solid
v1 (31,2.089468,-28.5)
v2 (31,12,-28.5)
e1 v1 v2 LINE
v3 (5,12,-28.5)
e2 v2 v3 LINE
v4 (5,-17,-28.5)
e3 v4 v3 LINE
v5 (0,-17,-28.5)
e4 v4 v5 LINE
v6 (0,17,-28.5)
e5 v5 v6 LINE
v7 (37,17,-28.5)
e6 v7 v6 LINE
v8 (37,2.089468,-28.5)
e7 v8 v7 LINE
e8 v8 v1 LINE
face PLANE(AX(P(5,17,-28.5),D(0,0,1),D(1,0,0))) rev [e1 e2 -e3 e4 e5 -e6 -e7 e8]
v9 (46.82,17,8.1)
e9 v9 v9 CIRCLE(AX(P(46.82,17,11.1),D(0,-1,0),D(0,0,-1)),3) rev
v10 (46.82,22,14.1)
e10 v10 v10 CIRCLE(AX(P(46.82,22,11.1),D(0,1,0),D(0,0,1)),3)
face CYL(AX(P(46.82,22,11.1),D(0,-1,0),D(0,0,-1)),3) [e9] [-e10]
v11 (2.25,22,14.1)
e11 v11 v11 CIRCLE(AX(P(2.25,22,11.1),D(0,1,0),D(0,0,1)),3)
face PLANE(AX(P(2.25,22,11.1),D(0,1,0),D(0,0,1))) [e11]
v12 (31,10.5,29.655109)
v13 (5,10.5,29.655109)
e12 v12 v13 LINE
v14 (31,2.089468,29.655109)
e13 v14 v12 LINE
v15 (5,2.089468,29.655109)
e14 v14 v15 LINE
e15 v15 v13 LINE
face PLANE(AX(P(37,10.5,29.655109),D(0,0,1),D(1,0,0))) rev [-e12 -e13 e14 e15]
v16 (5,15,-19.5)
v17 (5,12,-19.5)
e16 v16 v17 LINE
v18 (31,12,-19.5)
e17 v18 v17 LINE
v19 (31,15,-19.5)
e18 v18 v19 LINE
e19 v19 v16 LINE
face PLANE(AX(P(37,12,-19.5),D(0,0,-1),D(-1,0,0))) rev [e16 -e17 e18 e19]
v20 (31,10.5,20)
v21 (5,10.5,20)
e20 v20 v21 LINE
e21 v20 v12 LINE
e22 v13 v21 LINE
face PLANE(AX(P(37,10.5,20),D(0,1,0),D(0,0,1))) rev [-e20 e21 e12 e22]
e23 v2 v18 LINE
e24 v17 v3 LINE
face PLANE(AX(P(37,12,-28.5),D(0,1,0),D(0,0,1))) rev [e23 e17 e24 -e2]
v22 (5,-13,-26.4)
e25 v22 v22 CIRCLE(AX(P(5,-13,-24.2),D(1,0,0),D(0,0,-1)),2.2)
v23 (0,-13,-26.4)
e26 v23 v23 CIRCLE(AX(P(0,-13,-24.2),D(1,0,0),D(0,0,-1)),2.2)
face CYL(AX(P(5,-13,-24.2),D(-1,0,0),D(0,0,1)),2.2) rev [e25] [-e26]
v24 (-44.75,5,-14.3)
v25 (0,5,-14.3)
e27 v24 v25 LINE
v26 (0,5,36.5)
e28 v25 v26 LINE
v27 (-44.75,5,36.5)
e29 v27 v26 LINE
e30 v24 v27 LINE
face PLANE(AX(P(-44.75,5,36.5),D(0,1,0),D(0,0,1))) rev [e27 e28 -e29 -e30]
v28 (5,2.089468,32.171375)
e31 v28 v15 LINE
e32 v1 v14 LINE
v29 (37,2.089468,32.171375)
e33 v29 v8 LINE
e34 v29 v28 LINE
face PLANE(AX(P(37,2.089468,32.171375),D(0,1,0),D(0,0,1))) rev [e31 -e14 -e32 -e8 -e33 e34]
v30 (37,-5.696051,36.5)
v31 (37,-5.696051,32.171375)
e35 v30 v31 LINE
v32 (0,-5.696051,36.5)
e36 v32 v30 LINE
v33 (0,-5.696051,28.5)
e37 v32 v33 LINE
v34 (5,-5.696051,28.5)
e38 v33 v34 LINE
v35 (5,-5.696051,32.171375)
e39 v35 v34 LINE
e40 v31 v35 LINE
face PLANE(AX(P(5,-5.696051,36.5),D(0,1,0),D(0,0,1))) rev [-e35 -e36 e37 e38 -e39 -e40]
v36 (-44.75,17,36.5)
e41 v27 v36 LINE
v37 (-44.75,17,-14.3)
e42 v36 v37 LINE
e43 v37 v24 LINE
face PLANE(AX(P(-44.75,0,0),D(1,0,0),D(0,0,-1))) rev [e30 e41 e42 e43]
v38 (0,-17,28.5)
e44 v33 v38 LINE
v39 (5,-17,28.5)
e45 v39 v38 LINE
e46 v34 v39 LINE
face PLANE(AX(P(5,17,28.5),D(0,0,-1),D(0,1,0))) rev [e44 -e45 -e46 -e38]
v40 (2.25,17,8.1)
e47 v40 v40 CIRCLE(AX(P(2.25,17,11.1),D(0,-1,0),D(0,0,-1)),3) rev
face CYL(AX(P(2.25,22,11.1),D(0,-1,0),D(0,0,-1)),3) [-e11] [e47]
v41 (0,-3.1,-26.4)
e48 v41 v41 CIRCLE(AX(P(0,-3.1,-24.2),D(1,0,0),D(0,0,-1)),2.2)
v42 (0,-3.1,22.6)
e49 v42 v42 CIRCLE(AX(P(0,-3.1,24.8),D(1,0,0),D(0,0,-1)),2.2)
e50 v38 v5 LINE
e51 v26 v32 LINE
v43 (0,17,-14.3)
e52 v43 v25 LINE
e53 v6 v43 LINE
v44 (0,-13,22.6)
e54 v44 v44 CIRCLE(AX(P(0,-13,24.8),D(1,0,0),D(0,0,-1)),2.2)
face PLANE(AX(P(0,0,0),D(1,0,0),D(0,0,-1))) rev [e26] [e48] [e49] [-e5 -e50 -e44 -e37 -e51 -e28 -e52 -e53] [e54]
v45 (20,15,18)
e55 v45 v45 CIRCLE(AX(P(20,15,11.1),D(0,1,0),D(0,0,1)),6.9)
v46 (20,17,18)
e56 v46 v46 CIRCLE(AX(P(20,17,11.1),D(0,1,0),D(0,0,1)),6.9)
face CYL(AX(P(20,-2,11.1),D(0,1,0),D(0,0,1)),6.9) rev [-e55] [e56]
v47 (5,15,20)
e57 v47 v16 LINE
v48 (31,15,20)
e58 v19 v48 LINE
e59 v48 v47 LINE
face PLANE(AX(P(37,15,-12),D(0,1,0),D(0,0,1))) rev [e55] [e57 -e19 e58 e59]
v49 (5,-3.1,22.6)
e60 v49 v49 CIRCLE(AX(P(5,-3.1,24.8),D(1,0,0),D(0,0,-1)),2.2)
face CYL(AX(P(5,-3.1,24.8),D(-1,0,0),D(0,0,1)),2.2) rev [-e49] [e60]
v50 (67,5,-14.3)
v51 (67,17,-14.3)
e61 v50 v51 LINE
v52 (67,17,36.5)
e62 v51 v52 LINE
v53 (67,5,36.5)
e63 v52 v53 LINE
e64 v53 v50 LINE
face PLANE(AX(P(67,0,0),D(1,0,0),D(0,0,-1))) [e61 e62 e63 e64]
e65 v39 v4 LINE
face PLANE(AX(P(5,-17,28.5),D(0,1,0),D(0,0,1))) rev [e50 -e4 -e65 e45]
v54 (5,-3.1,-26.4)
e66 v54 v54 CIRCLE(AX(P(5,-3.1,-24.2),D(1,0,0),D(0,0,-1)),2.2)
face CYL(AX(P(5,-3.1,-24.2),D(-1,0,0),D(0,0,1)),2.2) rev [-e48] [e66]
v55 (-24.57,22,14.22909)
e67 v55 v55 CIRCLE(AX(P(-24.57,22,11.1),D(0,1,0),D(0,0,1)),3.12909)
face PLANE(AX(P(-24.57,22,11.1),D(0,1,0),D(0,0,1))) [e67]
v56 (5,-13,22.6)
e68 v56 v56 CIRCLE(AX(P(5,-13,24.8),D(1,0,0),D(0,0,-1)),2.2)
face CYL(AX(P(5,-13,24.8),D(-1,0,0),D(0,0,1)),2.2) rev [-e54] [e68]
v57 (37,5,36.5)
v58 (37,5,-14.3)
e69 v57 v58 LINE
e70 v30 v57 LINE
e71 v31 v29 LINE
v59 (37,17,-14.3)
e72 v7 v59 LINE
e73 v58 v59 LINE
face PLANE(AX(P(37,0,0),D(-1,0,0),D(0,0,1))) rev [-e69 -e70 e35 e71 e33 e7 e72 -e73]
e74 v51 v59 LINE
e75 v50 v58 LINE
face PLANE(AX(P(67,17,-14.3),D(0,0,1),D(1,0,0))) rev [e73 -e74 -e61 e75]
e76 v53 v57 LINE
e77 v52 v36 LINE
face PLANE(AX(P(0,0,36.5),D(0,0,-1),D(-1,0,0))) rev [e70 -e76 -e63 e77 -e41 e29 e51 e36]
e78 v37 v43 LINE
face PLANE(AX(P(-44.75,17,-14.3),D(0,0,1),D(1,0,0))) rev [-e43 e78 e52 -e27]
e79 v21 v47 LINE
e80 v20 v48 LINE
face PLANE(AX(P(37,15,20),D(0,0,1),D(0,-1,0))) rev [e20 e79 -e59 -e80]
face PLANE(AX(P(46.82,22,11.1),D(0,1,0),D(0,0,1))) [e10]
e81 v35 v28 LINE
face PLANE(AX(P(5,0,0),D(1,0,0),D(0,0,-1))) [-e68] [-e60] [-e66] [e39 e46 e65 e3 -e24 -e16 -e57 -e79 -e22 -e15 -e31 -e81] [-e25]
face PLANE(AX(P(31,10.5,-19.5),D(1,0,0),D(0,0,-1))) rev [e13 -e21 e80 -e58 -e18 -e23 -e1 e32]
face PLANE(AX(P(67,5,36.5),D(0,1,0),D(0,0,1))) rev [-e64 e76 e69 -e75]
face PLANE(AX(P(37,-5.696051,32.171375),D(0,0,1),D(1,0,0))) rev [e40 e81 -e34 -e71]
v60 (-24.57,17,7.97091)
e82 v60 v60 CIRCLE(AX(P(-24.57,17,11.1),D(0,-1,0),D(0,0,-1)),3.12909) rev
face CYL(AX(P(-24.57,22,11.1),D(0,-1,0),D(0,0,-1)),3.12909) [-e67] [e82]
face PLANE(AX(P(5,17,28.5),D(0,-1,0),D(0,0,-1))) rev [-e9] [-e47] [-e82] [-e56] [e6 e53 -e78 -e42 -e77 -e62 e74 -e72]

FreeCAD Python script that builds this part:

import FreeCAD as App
import Part
import Sketcher

V = App.Vector
Q = App.Units.Quantity


def add_polygon(sketch, points):
    """Adds a closed chain of lines whose ends are joined by coincident constraints."""
    first, n = sketch.GeometryCount, len(points)
    for a, b in zip(points, points[1:] + points[:1]):
        sketch.addGeometry(Part.LineSegment(App.Vector(*a, 0), App.Vector(*b, 0)), False)
    for i in range(n):
        sketch.addConstraint(Sketcher.Constraint("Coincident", first + i, 2, first + (i + 1) % n, 1))

doc = App.newDocument("Part")
body = doc.addObject("PartDesign::Body", "Body")

# Sketch on YZ plane
sketch1 = doc.addObject("Sketcher::SketchObject", "Sketch")
body.addObject(sketch1)
sketch1.AttachmentSupport = (doc.YZ_Plane, [""])
sketch1.MapMode = "FlatFace"
add_polygon(sketch1, [(17, 28.5), (-17, 28.5), (-17, -28.5), (17, -28.5)])  # lines 0-3
sketch1.addGeometry(Part.Circle(V(-13, 24.8, 0), V(0, 0, 1), 2.2), False)  # 4
sketch1.addGeometry(Part.Circle(V(-13, -24.2, 0), V(0, 0, 1), 2.2), False)  # 5
sketch1.addGeometry(Part.Circle(V(-3.1, 24.8, 0), V(0, 0, 1), 2.2), False)  # 6
sketch1.addGeometry(Part.Circle(V(-3.1, -24.2, 0), V(0, 0, 1), 2.2), False)  # 7
sketch1.addConstraint(Sketcher.Constraint("Horizontal", 0))
sketch1.addConstraint(Sketcher.Constraint("Vertical", 1))
sketch1.addConstraint(Sketcher.Constraint("Horizontal", 2))
sketch1.addConstraint(Sketcher.Constraint("Vertical", 3))
sketch1.addConstraint(Sketcher.Constraint("Equal", 4, 5))
sketch1.addConstraint(Sketcher.Constraint("Equal", 5, 6))
sketch1.addConstraint(Sketcher.Constraint("Equal", 6, 7))
sketch1.addConstraint(Sketcher.Constraint("Symmetric", 0, 2, 2, 2, -1, 1))
sketch1.addConstraint(Sketcher.Constraint("Horizontal", 4, 3, 6, 3))
sketch1.addConstraint(Sketcher.Constraint("Horizontal", 5, 3, 7, 3))
sketch1.addConstraint(Sketcher.Constraint("Vertical", 4, 3, 5, 3))
sketch1.addConstraint(Sketcher.Constraint("Vertical", 6, 3, 7, 3))
sketch1.addConstraint(Sketcher.Constraint("Diameter", 4, Q("4.4 mm")))
sketch1.addConstraint(Sketcher.Constraint("DistanceX", 0, 2, 0, 1, Q("34 mm")))
sketch1.addConstraint(Sketcher.Constraint("DistanceY", 1, 2, 1, 1, Q("57 mm")))
sketch1.addConstraint(Sketcher.Constraint("DistanceX", 4, 3, -1, 1, Q("13 mm")))
sketch1.addConstraint(Sketcher.Constraint("DistanceY", 5, 3, 4, 3, Q("49 mm")))
sketch1.addConstraint(Sketcher.Constraint("DistanceY", -1, 1, 4, 3, Q("24.8 mm")))
sketch1.addConstraint(Sketcher.Constraint("DistanceX", 6, 3, -1, 1, Q("3.1 mm")))
pad1 = doc.addObject("PartDesign::Pad", "Pad")
body.addObject(pad1)
pad1.Profile = sketch1
pad1.Length = 5

# Sketch on YZ plane
sketch2 = doc.addObject("Sketcher::SketchObject", "Sketch001")
body.addObject(sketch2)
sketch2.AttachmentSupport = (doc.YZ_Plane, [""])
sketch2.MapMode = "FlatFace"
sketch2.AttachmentOffset = App.Placement(V(0, 0, 5), App.Rotation())
add_polygon(sketch2, [(17, -12), (17, 28.5), (10.5, 28.5), (10.5, 20), (15, 20), (15, -12)])  # lines 0-5
sketch2.addConstraint(Sketcher.Constraint("Vertical", 0))
sketch2.addConstraint(Sketcher.Constraint("Horizontal", 1))
sketch2.addConstraint(Sketcher.Constraint("Vertical", 2))
sketch2.addConstraint(Sketcher.Constraint("Horizontal", 3))
sketch2.addConstraint(Sketcher.Constraint("Vertical", 4))
sketch2.addConstraint(Sketcher.Constraint("Horizontal", 5))
sketch2.addConstraint(Sketcher.Constraint("DistanceX", 5, 1, 5, 2, Q("2 mm")))
sketch2.addConstraint(Sketcher.Constraint("DistanceY", 4, 2, 4, 1, Q("32 mm")))
sketch2.addConstraint(Sketcher.Constraint("DistanceX", 1, 2, 1, 1, Q("6.5 mm")))
sketch2.addConstraint(Sketcher.Constraint("DistanceY", 0, 1, 0, 2, Q("40.5 mm")))
sketch2.addConstraint(Sketcher.Constraint("DistanceX", -1, 1, 0, 2, Q("17 mm")))
sketch2.addConstraint(Sketcher.Constraint("DistanceY", -1, 1, 2, 2, Q("20 mm")))
pad2 = doc.addObject("PartDesign::Pad", "Pad001")
body.addObject(pad2)
pad2.Profile = sketch2
pad2.Length = 32

# Sketch on XZ plane
sketch3 = doc.addObject("Sketcher::SketchObject", "Sketch002")
body.addObject(sketch3)
sketch3.AttachmentSupport = (doc.XZ_Plane, [""])
sketch3.MapMode = "FlatFace"
sketch3.AttachmentOffset = App.Placement(V(0, 0, -17), App.Rotation())
sketch3.addGeometry(Part.Circle(V(20, 11, 0), V(0, 0, 1), 7), False)
sketch3.addConstraint(Sketcher.Constraint("Diameter", 0, Q("13.8 mm")))
sketch3.addConstraint(Sketcher.Constraint("DistanceX", -1, 1, 0, 3, Q("20 mm")))
sketch3.addConstraint(Sketcher.Constraint("DistanceY", -1, 1, 0, 3, Q("11.1 mm")))
pocket1 = doc.addObject("PartDesign::Pocket", "Pocket")
body.addObject(pocket1)
pocket1.Profile = sketch3
pocket1.Length = 19
pocket1.Reversed = True

# Sketch on XY plane
sketch4 = doc.addObject("Sketcher::SketchObject", "Sketch003")
body.addObject(sketch4)
sketch4.AttachmentSupport = (doc.XY_Plane, [""])
sketch4.MapMode = "FlatFace"
sketch4.AttachmentOffset = App.Placement(V(0, 0, 28.5), App.Rotation())
add_polygon(sketch4, [(37, 17), (0, 17), (0, -6), (5, -6), (5, 10), (37, 10)])  # lines 0-5
sketch4.addConstraint(Sketcher.Constraint("Horizontal", 0))
sketch4.addConstraint(Sketcher.Constraint("Vertical", 1))
sketch4.addConstraint(Sketcher.Constraint("Horizontal", 2))
sketch4.addConstraint(Sketcher.Constraint("Vertical", 3))
sketch4.addConstraint(Sketcher.Constraint("Horizontal", 4))
sketch4.addConstraint(Sketcher.Constraint("Vertical", 5))
sketch4.addConstraint(Sketcher.Constraint("PointOnObject", 0, 2, -2))
sketch4.addConstraint(Sketcher.Constraint("DistanceX", 0, 2, 0, 1, Q("37 mm")))
sketch4.addConstraint(Sketcher.Constraint("DistanceX", 2, 1, 2, 2, Q("5 mm")))
sketch4.addConstraint(Sketcher.Constraint("DistanceY", 5, 1, 5, 2, Q("6.5 mm")))
sketch4.addConstraint(Sketcher.Constraint("DistanceY", -1, 1, 0, 2, Q("17 mm")))
sketch4.addConstraint(Sketcher.Constraint("DistanceY", 1, 2, 1, 1, Q("22.696051 mm")))
pad3 = doc.addObject("PartDesign::Pad", "Pad002")
body.addObject(pad3)
pad3.Profile = sketch4
pad3.Length = 8

# Sketch on XY plane
sketch5 = doc.addObject("Sketcher::SketchObject", "Sketch004")
body.addObject(sketch5)
sketch5.AttachmentSupport = (doc.XY_Plane, [""])
sketch5.MapMode = "FlatFace"
sketch5.AttachmentOffset = App.Placement(V(0, 0, 20), App.Rotation())
add_polygon(sketch5, [(37, 15), (37, 10.5), (31, 10.5), (31, 15)])  # lines 0-3
sketch5.addConstraint(Sketcher.Constraint("Vertical", 0))
sketch5.addConstraint(Sketcher.Constraint("Horizontal", 1))
sketch5.addConstraint(Sketcher.Constraint("Vertical", 2))
sketch5.addConstraint(Sketcher.Constraint("Horizontal", 3))
sketch5.addConstraint(Sketcher.Constraint("DistanceX", 1, 2, 1, 1, Q("6 mm")))
sketch5.addConstraint(Sketcher.Constraint("DistanceY", 0, 2, 0, 1, Q("4.5 mm")))
sketch5.addConstraint(Sketcher.Constraint("DistanceX", -1, 1, 0, 2, Q("37 mm")))
sketch5.addConstraint(Sketcher.Constraint("DistanceY", -1, 1, 2, 2, Q("15 mm")))
pad4 = doc.addObject("PartDesign::Pad", "Pad003")
body.addObject(pad4)
pad4.Profile = sketch5
pad4.Length = 39.5
pad4.Reversed = True

# Sketch on YZ plane
sketch6 = doc.addObject("Sketcher::SketchObject", "Sketch005")
body.addObject(sketch6)
sketch6.AttachmentSupport = (doc.YZ_Plane, [""])
sketch6.MapMode = "FlatFace"
sketch6.AttachmentOffset = App.Placement(V(0, 0, 5), App.Rotation())
add_polygon(sketch6, [(-5.7, 36.5), (-5.7, 32.2), (2.1, 32.2), (2.1, 29.7), (10.5, 29.7), (10.5, 36.5)])  # lines 0-5
sketch6.addConstraint(Sketcher.Constraint("Vertical", 0))
sketch6.addConstraint(Sketcher.Constraint("Horizontal", 1))
sketch6.addConstraint(Sketcher.Constraint("Vertical", 2))
sketch6.addConstraint(Sketcher.Constraint("Horizontal", 3))
sketch6.addConstraint(Sketcher.Constraint("Vertical", 4))
sketch6.addConstraint(Sketcher.Constraint("Horizontal", 5))
sketch6.addConstraint(Sketcher.Constraint("DistanceX", -1, 1, 3, 2, Q("10.5 mm")))
sketch6.addConstraint(Sketcher.Constraint("DistanceY", -1, 1, 4, 2, Q("36.5 mm")))
sketch6.addConstraint(Sketcher.Constraint("DistanceX", 1, 1, 1, 2, Q("7.785519 mm")))
sketch6.addConstraint(Sketcher.Constraint("DistanceX", 3, 1, 3, 2, Q("8.410532 mm")))
sketch6.addConstraint(Sketcher.Constraint("DistanceY", 4, 1, 4, 2, Q("6.844891 mm")))
sketch6.addConstraint(Sketcher.Constraint("DistanceY", 0, 2, 0, 1, Q("4.328625 mm")))
pad5 = doc.addObject("PartDesign::Pad", "Pad004")
body.addObject(pad5)
pad5.Profile = sketch6
pad5.Length = 32

# Sketch on YZ plane
sketch7 = doc.addObject("Sketcher::SketchObject", "Sketch006")
body.addObject(sketch7)
sketch7.AttachmentSupport = (doc.YZ_Plane, [""])
sketch7.MapMode = "FlatFace"
sketch7.AttachmentOffset = App.Placement(V(0, 0, 5), App.Rotation())
add_polygon(sketch7, [(17, -28.5), (17, -12), (15, -12), (15, -19.5), (12, -19.5), (12, -28.5)])  # lines 0-5
sketch7.addConstraint(Sketcher.Constraint("Vertical", 0))
sketch7.addConstraint(Sketcher.Constraint("Horizontal", 1))
sketch7.addConstraint(Sketcher.Constraint("Vertical", 2))
sketch7.addConstraint(Sketcher.Constraint("Horizontal", 3))
sketch7.addConstraint(Sketcher.Constraint("Vertical", 4))
sketch7.addConstraint(Sketcher.Constraint("Horizontal", 5))
sketch7.addConstraint(Sketcher.Constraint("DistanceX", 1, 2, 1, 1, Q("2 mm")))
sketch7.addConstraint(Sketcher.Constraint("DistanceX", 3, 2, 3, 1, Q("3 mm")))
sketch7.addConstraint(Sketcher.Constraint("DistanceY", 4, 2, 4, 1, Q("9 mm")))
sketch7.addConstraint(Sketcher.Constraint("DistanceY", 0, 1, 0, 2, Q("16.5 mm")))
sketch7.addConstraint(Sketcher.Constraint("DistanceX", -1, 1, 0, 2, Q("17 mm")))
sketch7.addConstraint(Sketcher.Constraint("DistanceY", 0, 2, -1, 1, Q("12 mm")))
pad6 = doc.addObject("PartDesign::Pad", "Pad005")
body.addObject(pad6)
pad6.Profile = sketch7
pad6.Length = 32

# Sketch on XY plane
sketch8 = doc.addObject("Sketcher::SketchObject", "Sketch007")
body.addObject(sketch8)
sketch8.AttachmentSupport = (doc.XY_Plane, [""])
sketch8.MapMode = "FlatFace"
sketch8.AttachmentOffset = App.Placement(V(0, 0, 29.655109), App.Rotation())
add_polygon(sketch8, [(37, 10), (37, 2), (31, 2), (31, 10)])  # lines 0-3
sketch8.addConstraint(Sketcher.Constraint("Vertical", 0))
sketch8.addConstraint(Sketcher.Constraint("Horizontal", 1))
sketch8.addConstraint(Sketcher.Constraint("Vertical", 2))
sketch8.addConstraint(Sketcher.Constraint("Horizontal", 3))
sketch8.addConstraint(Sketcher.Constraint("DistanceX", 1, 2, 1, 1, Q("6 mm")))
sketch8.addConstraint(Sketcher.Constraint("DistanceX", -1, 1, 0, 2, Q("37 mm")))
sketch8.addConstraint(Sketcher.Constraint("DistanceY", -1, 1, 2, 2, Q("10.5 mm")))
sketch8.addConstraint(Sketcher.Constraint("DistanceY", 0, 2, 0, 1, Q("8.410532 mm")))
pad7 = doc.addObject("PartDesign::Pad", "Pad006")
body.addObject(pad7)
pad7.Profile = sketch8
pad7.Length = 58.155109
pad7.Reversed = True

# Sketch on XY plane
sketch9 = doc.addObject("Sketcher::SketchObject", "Sketch008")
body.addObject(sketch9)
sketch9.AttachmentSupport = (doc.XY_Plane, [""])
sketch9.MapMode = "FlatFace"
sketch9.AttachmentOffset = App.Placement(V(0, 0, -19.5), App.Rotation())
add_polygon(sketch9, [(37, 12), (37, 10.5), (31, 10.5), (31, 12)])  # lines 0-3
sketch9.addConstraint(Sketcher.Constraint("Vertical", 0))
sketch9.addConstraint(Sketcher.Constraint("Horizontal", 1))
sketch9.addConstraint(Sketcher.Constraint("Vertical", 2))
sketch9.addConstraint(Sketcher.Constraint("Horizontal", 3))
sketch9.addConstraint(Sketcher.Constraint("DistanceX", 1, 2, 1, 1, Q("6 mm")))
sketch9.addConstraint(Sketcher.Constraint("DistanceY", 0, 2, 0, 1, Q("1.5 mm")))
sketch9.addConstraint(Sketcher.Constraint("DistanceX", -1, 1, 0, 2, Q("37 mm")))
sketch9.addConstraint(Sketcher.Constraint("DistanceY", -1, 1, 2, 2, Q("12 mm")))
pad8 = doc.addObject("PartDesign::Pad", "Pad007")
body.addObject(pad8)
pad8.Profile = sketch9
pad8.Length = 9
pad8.Reversed = True

# Sketch on YZ plane
sketch10 = doc.addObject("Sketcher::SketchObject", "Sketch009")
body.addObject(sketch10)
sketch10.AttachmentSupport = (doc.YZ_Plane, [""])
sketch10.MapMode = "FlatFace"
sketch10.AttachmentOffset = App.Placement(V(0, 0, 37), App.Rotation())
add_polygon(sketch10, [(17, 36), (5, 36), (5, -14), (17, -14)])  # lines 0-3
sketch10.addConstraint(Sketcher.Constraint("Horizontal", 0))
sketch10.addConstraint(Sketcher.Constraint("Vertical", 1))
sketch10.addConstraint(Sketcher.Constraint("Horizontal", 2))
sketch10.addConstraint(Sketcher.Constraint("Vertical", 3))
sketch10.addConstraint(Sketcher.Constraint("DistanceX", 0, 2, 0, 1, Q("12 mm")))
sketch10.addConstraint(Sketcher.Constraint("DistanceY", 1, 2, 1, 1, Q("50.8 mm")))
sketch10.addConstraint(Sketcher.Constraint("DistanceX", -1, 1, 0, 2, Q("5 mm")))
sketch10.addConstraint(Sketcher.Constraint("DistanceY", -1, 1, 0, 2, Q("36.5 mm")))
pad9 = doc.addObject("PartDesign::Pad", "Pad008")
body.addObject(pad9)
pad9.Profile = sketch10
pad9.Length = 30

# Sketch on YZ plane
sketch11 = doc.addObject("Sketcher::SketchObject", "Sketch010")
body.addObject(sketch11)
sketch11.AttachmentSupport = (doc.YZ_Plane, [""])
sketch11.MapMode = "FlatFace"
add_polygon(sketch11, [(17, -14), (5, -14), (5, 36), (17, 36)])  # lines 0-3
sketch11.addConstraint(Sketcher.Constraint("Horizontal", 0))
sketch11.addConstraint(Sketcher.Constraint("Vertical", 1))
sketch11.addConstraint(Sketcher.Constraint("Horizontal", 2))
sketch11.addConstraint(Sketcher.Constraint("Vertical", 3))
sketch11.addConstraint(Sketcher.Constraint("DistanceX", 0, 2, 0, 1, Q("12 mm")))
sketch11.addConstraint(Sketcher.Constraint("DistanceY", 1, 1, 1, 2, Q("50.8 mm")))
sketch11.addConstraint(Sketcher.Constraint("DistanceX", -1, 1, 0, 2, Q("5 mm")))
sketch11.addConstraint(Sketcher.Constraint("DistanceY", 0, 2, -1, 1, Q("14.3 mm")))
pad10 = doc.addObject("PartDesign::Pad", "Pad009")
body.addObject(pad10)
pad10.Profile = sketch11
pad10.Length = 44.75
pad10.Reversed = True

# Sketch on XZ plane
sketch12 = doc.addObject("Sketcher::SketchObject", "Sketch011")
body.addObject(sketch12)
sketch12.AttachmentSupport = (doc.XZ_Plane, [""])
sketch12.MapMode = "FlatFace"
sketch12.AttachmentOffset = App.Placement(V(0, 0, -17), App.Rotation())
sketch12.addGeometry(Part.Circle(V(2.2, 11.1, 0), V(0, 0, 1), 3), False)
sketch12.addGeometry(Part.Circle(V(46.8, 11.1, 0), V(0, 0, 1), 3), False)
sketch12.addGeometry(Part.Circle(V(-24.6, 11.1, 0), V(0, 0, 1), 3.1), False)
sketch12.addConstraint(Sketcher.Constraint("Equal", 0, 1))
sketch12.addConstraint(Sketcher.Constraint("Horizontal", 0, 3, 1, 3))
sketch12.addConstraint(Sketcher.Constraint("Horizontal", 1, 3, 2, 3))
sketch12.addConstraint(Sketcher.Constraint("Diameter", 0, Q("6 mm")))
sketch12.addConstraint(Sketcher.Constraint("DistanceY", -1, 1, 0, 3, Q("11.1 mm")))
sketch12.addConstraint(Sketcher.Constraint("Diameter", 2, Q("6.25818 mm")))
sketch12.addConstraint(Sketcher.Constraint("DistanceX", -1, 1, 0, 3, Q("2.25 mm")))
sketch12.addConstraint(Sketcher.Constraint("DistanceX", -1, 1, 1, 3, Q("46.82 mm")))
sketch12.addConstraint(Sketcher.Constraint("DistanceX", 2, 3, -1, 1, Q("24.57 mm")))
pad11 = doc.addObject("PartDesign::Pad", "Pad010")
body.addObject(pad11)
pad11.Profile = sketch12
pad11.Length = 5
pad11.Reversed = True

doc.recompute()
